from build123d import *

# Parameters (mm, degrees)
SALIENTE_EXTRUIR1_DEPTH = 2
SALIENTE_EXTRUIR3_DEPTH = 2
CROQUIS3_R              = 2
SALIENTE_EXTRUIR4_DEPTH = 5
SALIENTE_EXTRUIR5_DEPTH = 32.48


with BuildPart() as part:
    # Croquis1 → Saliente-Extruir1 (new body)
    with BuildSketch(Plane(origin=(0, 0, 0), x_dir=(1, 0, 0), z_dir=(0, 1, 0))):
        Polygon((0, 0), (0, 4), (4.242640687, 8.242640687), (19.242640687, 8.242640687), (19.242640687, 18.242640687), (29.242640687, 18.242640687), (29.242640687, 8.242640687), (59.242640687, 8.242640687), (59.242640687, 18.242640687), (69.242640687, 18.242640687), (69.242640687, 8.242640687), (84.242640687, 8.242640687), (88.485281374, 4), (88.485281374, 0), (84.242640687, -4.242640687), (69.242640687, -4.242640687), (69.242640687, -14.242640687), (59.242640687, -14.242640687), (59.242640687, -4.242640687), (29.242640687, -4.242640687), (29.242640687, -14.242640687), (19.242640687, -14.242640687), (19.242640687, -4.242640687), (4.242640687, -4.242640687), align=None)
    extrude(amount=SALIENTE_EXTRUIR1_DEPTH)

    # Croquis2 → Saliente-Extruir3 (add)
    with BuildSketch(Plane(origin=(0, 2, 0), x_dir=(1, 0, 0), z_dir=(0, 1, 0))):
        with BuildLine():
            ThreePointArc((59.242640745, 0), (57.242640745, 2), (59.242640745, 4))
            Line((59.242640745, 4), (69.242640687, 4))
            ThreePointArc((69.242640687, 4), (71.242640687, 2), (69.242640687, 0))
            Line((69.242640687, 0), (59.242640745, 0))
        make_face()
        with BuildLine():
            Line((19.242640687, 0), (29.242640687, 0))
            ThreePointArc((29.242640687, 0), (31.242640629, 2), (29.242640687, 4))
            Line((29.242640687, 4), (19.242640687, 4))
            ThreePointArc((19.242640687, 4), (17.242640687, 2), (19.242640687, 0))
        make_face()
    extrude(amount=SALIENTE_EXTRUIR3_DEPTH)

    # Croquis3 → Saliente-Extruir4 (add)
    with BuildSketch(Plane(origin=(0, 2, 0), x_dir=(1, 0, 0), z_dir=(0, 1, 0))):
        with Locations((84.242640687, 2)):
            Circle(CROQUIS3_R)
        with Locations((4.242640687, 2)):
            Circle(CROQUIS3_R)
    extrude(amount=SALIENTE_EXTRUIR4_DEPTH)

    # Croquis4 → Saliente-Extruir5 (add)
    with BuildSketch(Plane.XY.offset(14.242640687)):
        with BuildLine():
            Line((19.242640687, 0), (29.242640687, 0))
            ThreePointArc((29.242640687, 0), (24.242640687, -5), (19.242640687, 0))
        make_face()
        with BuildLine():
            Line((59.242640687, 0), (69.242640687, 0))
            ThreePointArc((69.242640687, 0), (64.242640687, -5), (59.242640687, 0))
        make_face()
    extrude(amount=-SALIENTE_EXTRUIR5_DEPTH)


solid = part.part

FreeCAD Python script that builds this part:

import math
import FreeCAD as App
import Part
import Sketcher

V = App.Vector

doc = App.newDocument("Part")
body = doc.addObject("PartDesign::Body", "Body")

sketch1 = body.newObject("Sketcher::SketchObject", "Sketch")
sketch1.AttachmentSupport = (doc.getObject("XZ_Plane"), [""])
sketch1.MapMode = "FlatFace"
sketch1.addGeometry([
    Part.LineSegment(V(0, -4, 0), V(0, 0, 0)),
    Part.LineSegment(V(0, 0, 0), V(4.2, 4.2, 0)),
    Part.LineSegment(V(4.2, 4.2, 0), V(19.2, 4.2, 0)),
    Part.LineSegment(V(19.2, 4.2, 0), V(19.2, 14.2, 0)),
    Part.LineSegment(V(19.2, 14.2, 0), V(29.2, 14.2, 0)),
    Part.LineSegment(V(29.2, 14.2, 0), V(29.2, 4.2, 0)),
    Part.LineSegment(V(29.2, 4.2, 0), V(59.2, 4.2, 0)),
    Part.LineSegment(V(59.2, 4.2, 0), V(59.2, 14.2, 0)),
    Part.LineSegment(V(59.2, 14.2, 0), V(69.2, 14.2, 0)),
    Part.LineSegment(V(69.2, 14.2, 0), V(69.2, 4.2, 0)),
    Part.LineSegment(V(69.2, 4.2, 0), V(84.2, 4.2, 0)),
    Part.LineSegment(V(84.2, 4.2, 0), V(88.5, 0, 0)),
    Part.LineSegment(V(88.5, 0, 0), V(88.5, -4, 0)),
    Part.LineSegment(V(88.5, -4, 0), V(84.2, -8.2, 0)),
    Part.LineSegment(V(84.2, -8.2, 0), V(69.2, -8.2, 0)),
    Part.LineSegment(V(69.2, -8.2, 0), V(69.2, -18.2, 0)),
    Part.LineSegment(V(69.2, -18.2, 0), V(59.2, -18.2, 0)),
    Part.LineSegment(V(59.2, -18.2, 0), V(59.2, -8.2, 0)),
    Part.LineSegment(V(59.2, -8.2, 0), V(29.2, -8.2, 0)),
    Part.LineSegment(V(29.2, -8.2, 0), V(29.2, -18.2, 0)),
    Part.LineSegment(V(29.2, -18.2, 0), V(19.2, -18.2, 0)),
    Part.LineSegment(V(19.2, -18.2, 0), V(19.2, -8.2, 0)),
    Part.LineSegment(V(19.2, -8.2, 0), V(4.2, -8.2, 0)),
    Part.LineSegment(V(4.2, -8.2, 0), V(0, -4, 0)),
], False)
sketch1.addConstraint([
    Sketcher.Constraint("Coincident", 0, 2, 1, 1),
    Sketcher.Constraint("Coincident", 1, 2, 2, 1),
    Sketcher.Constraint("Coincident", 2, 2, 3, 1),
    Sketcher.Constraint("Coincident", 3, 2, 4, 1),
    Sketcher.Constraint("Coincident", 4, 2, 5, 1),
    Sketcher.Constraint("Coincident", 5, 2, 6, 1),
    Sketcher.Constraint("Coincident", 6, 2, 7, 1),
    Sketcher.Constraint("Coincident", 7, 2, 8, 1),
    Sketcher.Constraint("Coincident", 8, 2, 9, 1),
    Sketcher.Constraint("Coincident", 9, 2, 10, 1),
    Sketcher.Constraint("Coincident", 10, 2, 11, 1),
    Sketcher.Constraint("Coincident", 11, 2, 12, 1),
    Sketcher.Constraint("Coincident", 12, 2, 13, 1),
    Sketcher.Constraint("Coincident", 13, 2, 14, 1),
    Sketcher.Constraint("Coincident", 14, 2, 15, 1),
    Sketcher.Constraint("Coincident", 15, 2, 16, 1),
    Sketcher.Constraint("Coincident", 16, 2, 17, 1),
    Sketcher.Constraint("Coincident", 17, 2, 18, 1),
    Sketcher.Constraint("Coincident", 18, 2, 19, 1),
    Sketcher.Constraint("Coincident", 19, 2, 20, 1),
    Sketcher.Constraint("Coincident", 20, 2, 21, 1),
    Sketcher.Constraint("Coincident", 21, 2, 22, 1),
    Sketcher.Constraint("Coincident", 22, 2, 23, 1),
    Sketcher.Constraint("Coincident", 23, 2, 0, 1),
    Sketcher.Constraint("Vertical", 0),
    Sketcher.Constraint("Horizontal", 2),
    Sketcher.Constraint("Vertical", 3),
    Sketcher.Constraint("Horizontal", 4),
    Sketcher.Constraint("Vertical", 5),
    Sketcher.Constraint("Horizontal", 6),
    Sketcher.Constraint("Vertical", 7),
    Sketcher.Constraint("Horizontal", 8),
    Sketcher.Constraint("Vertical", 9),
    Sketcher.Constraint("Horizontal", 10),
    Sketcher.Constraint("Vertical", 12),
    Sketcher.Constraint("Horizontal", 14),
    Sketcher.Constraint("Vertical", 15),
    Sketcher.Constraint("Horizontal", 16),
    Sketcher.Constraint("Vertical", 17),
    Sketcher.Constraint("Horizontal", 18),
    Sketcher.Constraint("Vertical", 19),
    Sketcher.Constraint("Horizontal", 20),
    Sketcher.Constraint("Vertical", 21),
    Sketcher.Constraint("Horizontal", 22),
    Sketcher.Constraint("Coincident", 0, 2, -1, 1),
    Sketcher.Constraint("PointOnObject", 11, 2, -1),
    Sketcher.Constraint("Perpendicular", 1, 11),
    Sketcher.Constraint("Perpendicular", 11, 13),
    Sketcher.Constraint("Perpendicular", 13, 23),
    Sketcher.Constraint("Horizontal", 2, 2, 5, 2),
    Sketcher.Constraint("Horizontal", 4, 2, 7, 2),
    Sketcher.Constraint("Horizontal", 6, 2, 9, 2),
    Sketcher.Constraint("Horizontal", 14, 2, 17, 2),
    Sketcher.Constraint("Horizontal", 16, 2, 19, 2),
    Sketcher.Constraint("Horizontal", 18, 2, 21, 2),
    Sketcher.Constraint("Horizontal", 12, 2, 23, 2),
    Sketcher.Constraint("Vertical", 10, 2, 13, 2),
    Sketcher.Constraint("Vertical", 9, 2, 14, 2),
    Sketcher.Constraint("Vertical", 7, 2, 16, 2),
    Sketcher.Constraint("Vertical", 5, 2, 18, 2),
    Sketcher.Constraint("Vertical", 3, 2, 20, 2),
    Sketcher.Constraint("Vertical", 1, 2, 22, 2),
    Sketcher.Constraint("Equal", 4, 8),
    Sketcher.Constraint("Equal", 2, 10),
    Sketcher.Constraint("Equal", 20, 3),
    Sketcher.Constraint("Equal", 9, 15),
    Sketcher.Constraint("DistanceX", 2, 1, 2, 2, 15.0),
    Sketcher.Constraint("DistanceX", 4, 1, 4, 2, 10.0),
    Sketcher.Constraint("DistanceX", 6, 1, 6, 2, 30.0),
    Sketcher.Constraint("DistanceY", 0, 1, 0, 2, 4.0),
    Sketcher.Constraint("Distance", 1, 6.0),
])
pad1 = body.newObject("PartDesign::Pad", "Pad")
pad1.Profile = sketch1
pad1.Length = 2
pad1.Reversed = True

sketch2 = body.newObject("Sketcher::SketchObject", "Sketch001")
sketch2.AttachmentSupport = (doc.getObject("XZ_Plane"), [""])
sketch2.MapMode = "FlatFace"
sketch2.AttachmentOffset = App.Placement(V(0, 0, -2), App.Rotation())
sketch2.addGeometry([
    Part.ArcOfCircle(Part.Circle(V(59.2, -2, 0), V(0, 0, 1), 2), math.radians(90), math.radians(270)),
    Part.LineSegment(V(59.2, 0, 0), V(69.2, 0, 0)),
    Part.ArcOfCircle(Part.Circle(V(69.2, -2, 0), V(0, 0, 1), 2), math.radians(-90), math.radians(90)),
    Part.LineSegment(V(69.2, -4, 0), V(59.2, -4, 0)),
    Part.LineSegment(V(19.2, 0, 0), V(29.2, 0, 0)),
    Part.ArcOfCircle(Part.Circle(V(29.2, -2, 0), V(0, 0, 1), 2), math.radians(-90), math.radians(90)),
    Part.LineSegment(V(29.2, -4, 0), V(19.2, -4, 0)),
    Part.ArcOfCircle(Part.Circle(V(19.2, -2, 0), V(0, 0, 1), 2), math.radians(90), math.radians(270)),
], False)
sketch2.addConstraint([
    Sketcher.Constraint("Tangent", 0, 1, 1, 1),
    Sketcher.Constraint("Tangent", 1, 2, 2, 2),
    Sketcher.Constraint("Tangent", 2, 1, 3, 1),
    Sketcher.Constraint("Tangent", 3, 2, 0, 2),
    Sketcher.Constraint("Tangent", 4, 2, 5, 2),
    Sketcher.Constraint("Tangent", 5, 1, 6, 1),
    Sketcher.Constraint("Tangent", 6, 2, 7, 2),
    Sketcher.Constraint("Tangent", 7, 1, 4, 1),
    Sketcher.Constraint("Horizontal", 1),
    Sketcher.Constraint("Horizontal", 3),
    Sketcher.Constraint("Horizontal", 4),
    Sketcher.Constraint("Horizontal", 6),
    Sketcher.Constraint("Equal", 2, 5),
    Sketcher.Constraint("PointOnObject", 0, 1, -1),
    Sketcher.Constraint("PointOnObject", 4, 2, -1),
    Sketcher.Constraint("Equal", 3, 4),
    Sketcher.Constraint("Radius", 0, 2.0),
    Sketcher.Constraint("DistanceX", 1, 1, 1, 2, 10.0),
    Sketcher.Constraint("DistanceX", 5, 3, 0, 3, 30.0),
    Sketcher.Constraint("DistanceX", -1, 1, 0, 3, 59.242641),
])
pad2 = body.newObject("PartDesign::Pad", "Pad001")
pad2.Profile = sketch2
pad2.Length = 2
pad2.Reversed = True

sketch3 = body.newObject("Sketcher::SketchObject", "Sketch002")
sketch3.AttachmentSupport = (doc.getObject("XZ_Plane"), [""])
sketch3.MapMode = "FlatFace"
sketch3.AttachmentOffset = App.Placement(V(0, 0, -2), App.Rotation())
sketch3.addGeometry([
    Part.Circle(V(84.2, -2, 0), V(0, 0, 1), 2),
    Part.Circle(V(4.2, -2, 0), V(0, 0, 1), 2),
], False)
sketch3.addConstraint([
    Sketcher.Constraint("Equal", 0, 1),
    Sketcher.Constraint("Horizontal", 0, 3, 1, 3),
    Sketcher.Constraint("Diameter", 0, 4.0),
    Sketcher.Constraint("DistanceY", 0, 3, -1, 1, 2.0),
    Sketcher.Constraint("DistanceX", 1, 3, 0, 3, 80.0),
    Sketcher.Constraint("DistanceX", -1, 1, 0, 3, 84.242641),
])
pad3 = body.newObject("PartDesign::Pad", "Pad002")
pad3.Profile = sketch3
pad3.Length = 5
pad3.Reversed = True

sketch4 = body.newObject("Sketcher::SketchObject", "Sketch003")
sketch4.AttachmentSupport = (doc.getObject("XY_Plane"), [""])
sketch4.MapMode = "FlatFace"
sketch4.AttachmentOffset = App.Placement(V(0, 0, 14.242641), App.Rotation())
sketch4.addGeometry([
    Part.LineSegment(V(29, 0, 0), V(19, 0, 0)),
    Part.ArcOfCircle(Part.Circle(V(24, 0, 0), V(0, 0, 1), 5), math.radians(180), math.radians(360)),
    Part.LineSegment(V(69, 0, 0), V(59, 0, 0)),
    Part.ArcOfCircle(Part.Circle(V(64, 0, 0), V(0, 0, 1), 5), math.radians(180), math.radians(360)),
], False)
sketch4.addConstraint([
    Sketcher.Constraint("Coincident", 0, 1, 1, 2),
    Sketcher.Constraint("Coincident", 1, 1, 0, 2),
    Sketcher.Constraint("Coincident", 2, 1, 3, 2),
    Sketcher.Constraint("Coincident", 3, 1, 2, 2),
    Sketcher.Constraint("Horizontal", 0),
    Sketcher.Constraint("Horizontal", 2),
    Sketcher.Constraint("Equal", 1, 3),
    Sketcher.Constraint("PointOnObject", 1, 3, -1),
    Sketcher.Constraint("PointOnObject", 3, 3, -1),
    Sketcher.Constraint("PointOnObject", 0, 1, -1),
    Sketcher.Constraint("PointOnObject", 2, 1, -1),
    Sketcher.Constraint("Radius", 1, 5.0),
    Sketcher.Constraint("DistanceX", 1, 3, 3, 3, 40.0),
    Sketcher.Constraint("DistanceX", -1, 1, 1, 3, 24.242641),
])
pad4 = body.newObject("PartDesign::Pad", "Pad003")
pad4.Profile = sketch4
pad4.Length = 32.48
pad4.Reversed = True

doc.recompute()
